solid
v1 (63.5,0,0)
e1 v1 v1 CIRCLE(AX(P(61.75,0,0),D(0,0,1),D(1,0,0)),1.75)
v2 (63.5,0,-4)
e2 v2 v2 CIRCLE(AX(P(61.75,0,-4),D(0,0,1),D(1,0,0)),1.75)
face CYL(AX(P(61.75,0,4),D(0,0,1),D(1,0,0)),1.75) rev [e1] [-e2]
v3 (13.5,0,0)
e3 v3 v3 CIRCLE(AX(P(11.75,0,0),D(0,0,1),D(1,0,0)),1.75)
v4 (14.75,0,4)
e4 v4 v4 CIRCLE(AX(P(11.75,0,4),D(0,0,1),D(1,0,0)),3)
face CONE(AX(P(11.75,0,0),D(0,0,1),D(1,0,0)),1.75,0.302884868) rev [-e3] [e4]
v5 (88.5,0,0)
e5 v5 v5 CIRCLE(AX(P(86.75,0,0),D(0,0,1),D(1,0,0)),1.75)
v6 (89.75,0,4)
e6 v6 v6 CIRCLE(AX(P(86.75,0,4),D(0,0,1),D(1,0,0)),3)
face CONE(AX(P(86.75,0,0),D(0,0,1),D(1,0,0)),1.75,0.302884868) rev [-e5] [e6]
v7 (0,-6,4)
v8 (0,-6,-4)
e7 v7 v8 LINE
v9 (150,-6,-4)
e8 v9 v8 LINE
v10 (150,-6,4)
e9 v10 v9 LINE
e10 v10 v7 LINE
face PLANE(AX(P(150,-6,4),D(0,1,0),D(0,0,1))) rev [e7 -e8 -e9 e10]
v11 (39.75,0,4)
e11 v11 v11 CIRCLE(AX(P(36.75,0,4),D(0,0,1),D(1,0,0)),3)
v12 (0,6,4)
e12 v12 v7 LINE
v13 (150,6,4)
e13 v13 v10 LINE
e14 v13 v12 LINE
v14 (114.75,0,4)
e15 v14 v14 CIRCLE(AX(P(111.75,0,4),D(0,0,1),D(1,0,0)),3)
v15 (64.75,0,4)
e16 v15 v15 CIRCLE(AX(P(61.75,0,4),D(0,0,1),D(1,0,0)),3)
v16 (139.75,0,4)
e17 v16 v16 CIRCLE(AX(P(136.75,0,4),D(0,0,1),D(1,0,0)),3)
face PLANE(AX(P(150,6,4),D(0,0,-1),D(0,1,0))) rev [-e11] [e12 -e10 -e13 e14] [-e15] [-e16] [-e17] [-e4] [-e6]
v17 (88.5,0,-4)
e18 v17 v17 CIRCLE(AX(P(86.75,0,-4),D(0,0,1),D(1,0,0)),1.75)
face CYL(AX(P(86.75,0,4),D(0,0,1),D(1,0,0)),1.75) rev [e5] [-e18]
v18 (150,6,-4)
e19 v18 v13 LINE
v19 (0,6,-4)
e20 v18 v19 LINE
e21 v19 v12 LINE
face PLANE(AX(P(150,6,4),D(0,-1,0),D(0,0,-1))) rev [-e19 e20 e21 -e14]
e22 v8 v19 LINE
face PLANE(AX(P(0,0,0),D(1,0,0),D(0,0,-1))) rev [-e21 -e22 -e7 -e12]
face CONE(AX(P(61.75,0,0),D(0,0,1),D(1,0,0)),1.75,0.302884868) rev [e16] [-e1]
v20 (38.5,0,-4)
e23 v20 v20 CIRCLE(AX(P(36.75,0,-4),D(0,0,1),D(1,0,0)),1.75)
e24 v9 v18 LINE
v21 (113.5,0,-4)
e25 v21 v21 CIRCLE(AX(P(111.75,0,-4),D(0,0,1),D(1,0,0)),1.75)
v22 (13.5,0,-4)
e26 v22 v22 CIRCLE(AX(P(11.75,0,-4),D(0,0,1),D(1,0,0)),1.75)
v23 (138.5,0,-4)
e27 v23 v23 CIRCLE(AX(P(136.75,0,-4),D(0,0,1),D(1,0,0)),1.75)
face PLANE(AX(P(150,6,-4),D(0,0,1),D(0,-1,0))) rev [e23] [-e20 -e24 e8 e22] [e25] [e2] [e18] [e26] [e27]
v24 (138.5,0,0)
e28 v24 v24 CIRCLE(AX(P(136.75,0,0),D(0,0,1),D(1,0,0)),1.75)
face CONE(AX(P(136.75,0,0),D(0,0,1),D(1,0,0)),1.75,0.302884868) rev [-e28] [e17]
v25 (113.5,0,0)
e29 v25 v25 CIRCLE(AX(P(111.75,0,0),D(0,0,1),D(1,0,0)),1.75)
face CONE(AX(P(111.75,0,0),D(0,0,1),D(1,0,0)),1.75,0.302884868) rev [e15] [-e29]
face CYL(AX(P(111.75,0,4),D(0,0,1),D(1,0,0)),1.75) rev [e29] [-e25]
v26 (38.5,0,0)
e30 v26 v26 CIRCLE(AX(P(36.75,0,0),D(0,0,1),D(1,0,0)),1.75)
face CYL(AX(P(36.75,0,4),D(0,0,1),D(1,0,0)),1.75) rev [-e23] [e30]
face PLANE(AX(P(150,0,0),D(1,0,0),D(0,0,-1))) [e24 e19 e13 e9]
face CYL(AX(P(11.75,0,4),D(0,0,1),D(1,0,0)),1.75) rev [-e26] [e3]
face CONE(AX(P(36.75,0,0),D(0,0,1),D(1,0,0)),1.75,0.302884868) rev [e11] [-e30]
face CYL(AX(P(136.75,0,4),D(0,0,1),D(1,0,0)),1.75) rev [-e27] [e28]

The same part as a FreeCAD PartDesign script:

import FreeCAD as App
import Part
import Sketcher
Q = App.Units.Quantity


def add_polygon(sketch, points):
    """Adds a closed chain of lines whose ends are joined by coincident constraints."""
    first, n = sketch.GeometryCount, len(points)
    for a, b in zip(points, points[1:] + points[:1]):
        sketch.addGeometry(Part.LineSegment(App.Vector(*a, 0), App.Vector(*b, 0)), False)
    for i in range(n):
        sketch.addConstraint(Sketcher.Constraint("Coincident", first + i, 2, first + (i + 1) % n, 1))

doc = App.newDocument("Part")
params = doc.addObject("Spreadsheet::Sheet", "Params")
for row, (alias, value) in enumerate([
    ("sketch1_width", "12 mm"),
    ("sketch1_height", "8 mm"),
    ("pad1_length", "150 mm"),
    ("sketch2_width", "3 mm"),
    ("sketch2_height", "8 mm"),
    ("sketch2_width2", "1.75 mm"),
    ("groove_angle", "360 deg"),
    ("linearpattern_pitch", "25 mm"),
], start=1):
    params.set(f"A{row}", alias)
    params.set(f"B{row}", "=" + value)
    params.setAlias(f"B{row}", alias)

body = doc.addObject("PartDesign::Body", "Body")

# Sketch on YZ plane
sketch1 = body.newObject("Sketcher::SketchObject", "Sketch")
sketch1.AttachmentSupport = (doc.getObject("YZ_Plane"), [""])
sketch1.MapMode = "FlatFace"
add_polygon(sketch1, [(6, 4), (-6, 4), (-6, -4), (6, -4)])  # lines 0-3
sketch1.addConstraint([
    Sketcher.Constraint("Horizontal", 0),
    Sketcher.Constraint("Vertical", 1),
    Sketcher.Constraint("Horizontal", 2),
    Sketcher.Constraint("Vertical", 3),
    Sketcher.Constraint("Symmetric", 0, 2, 2, 2, -1, 1),
    Sketcher.Constraint("DistanceX", 0, 2, 0, 1, Q("12 mm")),
    Sketcher.Constraint("DistanceY", 1, 2, 1, 1, Q("8 mm")),
])
sketch1.setExpression("Constraints[9]", "Params.sketch1_width")
sketch1.setExpression("Constraints[10]", "Params.sketch1_height")
pad1 = body.newObject("PartDesign::Pad", "Pad")
pad1.Profile = sketch1
pad1.setExpression("Length", "Params.pad1_length")

# Sketch on YZ plane
sketch2 = body.newObject("Sketcher::SketchObject", "Sketch001")
sketch2.AttachmentSupport = (doc.getObject("YZ_Plane"), [""])
sketch2.MapMode = "FlatFace"
sketch2.AttachmentOffset = App.Placement(App.Vector(0, 0, 11.75), App.Rotation())
add_polygon(sketch2, [(0, 4), (0, -4), (-1.8, -4), (-1.8, 0), (-3, 4)])  # lines 0-4
sketch2.addConstraint([
    Sketcher.Constraint("Vertical", 0),
    Sketcher.Constraint("Horizontal", 1),
    Sketcher.Constraint("Vertical", 2),
    Sketcher.Constraint("Horizontal", 4),
    Sketcher.Constraint("Symmetric", 0, 2, 4, 2, -1, 1),
    Sketcher.Constraint("PointOnObject", 2, 2, -1),
    Sketcher.Constraint("DistanceX", 4, 1, 4, 2, Q("3 mm")),
    Sketcher.Constraint("DistanceY", 0, 2, 0, 1, Q("8 mm")),
    Sketcher.Constraint("DistanceX", 1, 2, 1, 1, Q("1.75 mm")),
])
sketch2.setExpression("Constraints[11]", "Params.sketch2_width")
sketch2.setExpression("Constraints[12]", "Params.sketch2_height")
sketch2.setExpression("Constraints[13]", "Params.sketch2_width2")
groove = body.newObject("PartDesign::Groove", "Groove")
groove.Profile = sketch2
groove.ReferenceAxis = (sketch2, ["V_Axis"])
groove.setExpression("Angle", "Params.groove_angle")
doc.recompute()

linearpattern = body.newObject("PartDesign::LinearPattern", "LinearPattern")
linearpattern.Originals = [groove]
linearpattern.Direction = (doc.getObject("X_Axis"), [""])
linearpattern.Mode = "offset"
linearpattern.setExpression("Offset", "Params.linearpattern_pitch")
linearpattern.Occurrences = 6
body.Tip = linearpattern

doc.recompute()
